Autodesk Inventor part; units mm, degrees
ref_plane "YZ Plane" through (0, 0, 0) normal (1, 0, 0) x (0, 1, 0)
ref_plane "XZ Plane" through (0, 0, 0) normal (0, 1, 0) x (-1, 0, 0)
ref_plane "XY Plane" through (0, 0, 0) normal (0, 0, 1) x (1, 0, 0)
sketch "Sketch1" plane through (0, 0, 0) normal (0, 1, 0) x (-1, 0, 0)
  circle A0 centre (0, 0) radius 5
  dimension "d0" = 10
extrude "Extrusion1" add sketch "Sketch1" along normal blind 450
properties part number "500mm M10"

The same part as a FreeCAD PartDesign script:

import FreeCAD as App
import Part
import Sketcher
from FreeCAD import Vector

doc = App.newDocument("Part")
body = doc.addObject("PartDesign::Body", "Body")

sketch1 = body.newObject("Sketcher::SketchObject", "Sketch")
sketch1.AttachmentSupport = (doc.getObject("XZ_Plane"), [""])
sketch1.MapMode = "FlatFace"
sketch1.addGeometry(Part.Circle(Vector(0, 0, 0), Vector(0, 0, 1), 5), False)
sketch1.addConstraint([
    Sketcher.Constraint("Coincident", 0, 3, -1, 1),
    Sketcher.Constraint("Diameter", 0, 10.0),
])
pad1 = body.newObject("PartDesign::Pad", "Pad")
pad1.Profile = sketch1
pad1.Length = 450
pad1.Reversed = True

doc.recompute()
